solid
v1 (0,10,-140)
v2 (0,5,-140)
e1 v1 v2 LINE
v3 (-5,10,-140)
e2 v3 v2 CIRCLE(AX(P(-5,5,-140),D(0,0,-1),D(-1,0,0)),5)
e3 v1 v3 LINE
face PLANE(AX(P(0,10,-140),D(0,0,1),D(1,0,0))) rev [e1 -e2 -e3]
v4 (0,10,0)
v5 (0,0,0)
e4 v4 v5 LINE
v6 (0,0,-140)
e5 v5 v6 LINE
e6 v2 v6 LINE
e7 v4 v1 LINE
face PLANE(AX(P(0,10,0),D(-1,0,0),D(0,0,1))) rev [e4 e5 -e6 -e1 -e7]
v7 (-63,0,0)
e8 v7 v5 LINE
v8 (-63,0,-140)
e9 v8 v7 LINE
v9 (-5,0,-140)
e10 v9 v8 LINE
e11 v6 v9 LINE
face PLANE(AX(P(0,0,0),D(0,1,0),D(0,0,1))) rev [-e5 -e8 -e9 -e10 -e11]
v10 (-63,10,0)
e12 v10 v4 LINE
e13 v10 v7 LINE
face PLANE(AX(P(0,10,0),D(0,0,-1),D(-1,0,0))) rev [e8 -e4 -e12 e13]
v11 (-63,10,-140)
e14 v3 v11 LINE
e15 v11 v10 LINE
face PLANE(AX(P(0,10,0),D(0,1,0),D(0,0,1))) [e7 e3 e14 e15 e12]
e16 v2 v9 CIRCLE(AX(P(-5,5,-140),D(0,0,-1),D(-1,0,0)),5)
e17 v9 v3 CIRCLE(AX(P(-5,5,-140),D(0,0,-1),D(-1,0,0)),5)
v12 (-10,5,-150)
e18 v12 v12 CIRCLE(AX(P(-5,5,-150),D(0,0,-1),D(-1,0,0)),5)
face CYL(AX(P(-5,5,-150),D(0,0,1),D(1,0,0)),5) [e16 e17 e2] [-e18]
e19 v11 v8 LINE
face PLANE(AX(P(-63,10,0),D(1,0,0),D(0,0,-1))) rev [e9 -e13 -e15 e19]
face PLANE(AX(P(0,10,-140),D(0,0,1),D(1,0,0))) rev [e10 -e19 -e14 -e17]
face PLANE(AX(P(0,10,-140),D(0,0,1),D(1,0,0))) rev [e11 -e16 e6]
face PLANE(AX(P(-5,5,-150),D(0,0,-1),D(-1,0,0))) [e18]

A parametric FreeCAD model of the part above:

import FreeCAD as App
import Part
import Sketcher

V = App.Vector
Q = App.Units.Quantity

doc = App.newDocument("Part")
body = doc.addObject("PartDesign::Body", "Body")

sketch1 = body.newObject("Sketcher::SketchObject", "Sketch")
sketch1.AttachmentSupport = (doc.getObject("XZ_Plane"), [""])
sketch1.MapMode = "FlatFace"
sketch1.addGeometry(Part.LineSegment(V(-63, -140, 0), V(-63, 0, 0)), False)
sketch1.addGeometry(Part.LineSegment(V(-63, 0, 0), V(0, 0, 0)), False)
sketch1.addGeometry(Part.LineSegment(V(0, 0, 0), V(0, -140, 0)), False)
sketch1.addGeometry(Part.LineSegment(V(0, -140, 0), V(-63, -140, 0)), False)
sketch1.addConstraint(Sketcher.Constraint("Coincident", 0, 2, 1, 1))
sketch1.addConstraint(Sketcher.Constraint("Coincident", 1, 2, 2, 1))
sketch1.addConstraint(Sketcher.Constraint("Coincident", 2, 2, 3, 1))
sketch1.addConstraint(Sketcher.Constraint("Coincident", 3, 2, 0, 1))
sketch1.addConstraint(Sketcher.Constraint("Vertical", 0))
sketch1.addConstraint(Sketcher.Constraint("Horizontal", 1))
sketch1.addConstraint(Sketcher.Constraint("Vertical", 2))
sketch1.addConstraint(Sketcher.Constraint("Horizontal", 3))
sketch1.addConstraint(Sketcher.Constraint("Coincident", 1, 2, -1, 1))
sketch1.addConstraint(Sketcher.Constraint("DistanceX", 1, 1, 1, 2, Q("63 mm")))
sketch1.addConstraint(Sketcher.Constraint("DistanceY", 0, 1, 0, 2, Q("140 mm")))
pad1 = body.newObject("PartDesign::Pad", "Pad")
pad1.Profile = sketch1
pad1.Length = 10
pad1.Reversed = True

sketch2 = body.newObject("Sketcher::SketchObject", "Sketch001")
sketch2.AttachmentSupport = (doc.getObject("XY_Plane"), [""])
sketch2.MapMode = "FlatFace"
sketch2.AttachmentOffset = App.Placement(V(0, 0, -140), App.Rotation())
sketch2.addGeometry(Part.Circle(V(-5, 5, 0), V(0, 0, 1), 5), False)
sketch2.addConstraint(Sketcher.Constraint("Diameter", 0, Q("10 mm")))
sketch2.addConstraint(Sketcher.Constraint("DistanceX", 0, 3, -1, 1, Q("5 mm")))
sketch2.addConstraint(Sketcher.Constraint("DistanceY", -1, 1, 0, 3, Q("5 mm")))
pad2 = body.newObject("PartDesign::Pad", "Pad001")
pad2.Profile = sketch2
pad2.Length = 10
pad2.Reversed = True

doc.recompute()
